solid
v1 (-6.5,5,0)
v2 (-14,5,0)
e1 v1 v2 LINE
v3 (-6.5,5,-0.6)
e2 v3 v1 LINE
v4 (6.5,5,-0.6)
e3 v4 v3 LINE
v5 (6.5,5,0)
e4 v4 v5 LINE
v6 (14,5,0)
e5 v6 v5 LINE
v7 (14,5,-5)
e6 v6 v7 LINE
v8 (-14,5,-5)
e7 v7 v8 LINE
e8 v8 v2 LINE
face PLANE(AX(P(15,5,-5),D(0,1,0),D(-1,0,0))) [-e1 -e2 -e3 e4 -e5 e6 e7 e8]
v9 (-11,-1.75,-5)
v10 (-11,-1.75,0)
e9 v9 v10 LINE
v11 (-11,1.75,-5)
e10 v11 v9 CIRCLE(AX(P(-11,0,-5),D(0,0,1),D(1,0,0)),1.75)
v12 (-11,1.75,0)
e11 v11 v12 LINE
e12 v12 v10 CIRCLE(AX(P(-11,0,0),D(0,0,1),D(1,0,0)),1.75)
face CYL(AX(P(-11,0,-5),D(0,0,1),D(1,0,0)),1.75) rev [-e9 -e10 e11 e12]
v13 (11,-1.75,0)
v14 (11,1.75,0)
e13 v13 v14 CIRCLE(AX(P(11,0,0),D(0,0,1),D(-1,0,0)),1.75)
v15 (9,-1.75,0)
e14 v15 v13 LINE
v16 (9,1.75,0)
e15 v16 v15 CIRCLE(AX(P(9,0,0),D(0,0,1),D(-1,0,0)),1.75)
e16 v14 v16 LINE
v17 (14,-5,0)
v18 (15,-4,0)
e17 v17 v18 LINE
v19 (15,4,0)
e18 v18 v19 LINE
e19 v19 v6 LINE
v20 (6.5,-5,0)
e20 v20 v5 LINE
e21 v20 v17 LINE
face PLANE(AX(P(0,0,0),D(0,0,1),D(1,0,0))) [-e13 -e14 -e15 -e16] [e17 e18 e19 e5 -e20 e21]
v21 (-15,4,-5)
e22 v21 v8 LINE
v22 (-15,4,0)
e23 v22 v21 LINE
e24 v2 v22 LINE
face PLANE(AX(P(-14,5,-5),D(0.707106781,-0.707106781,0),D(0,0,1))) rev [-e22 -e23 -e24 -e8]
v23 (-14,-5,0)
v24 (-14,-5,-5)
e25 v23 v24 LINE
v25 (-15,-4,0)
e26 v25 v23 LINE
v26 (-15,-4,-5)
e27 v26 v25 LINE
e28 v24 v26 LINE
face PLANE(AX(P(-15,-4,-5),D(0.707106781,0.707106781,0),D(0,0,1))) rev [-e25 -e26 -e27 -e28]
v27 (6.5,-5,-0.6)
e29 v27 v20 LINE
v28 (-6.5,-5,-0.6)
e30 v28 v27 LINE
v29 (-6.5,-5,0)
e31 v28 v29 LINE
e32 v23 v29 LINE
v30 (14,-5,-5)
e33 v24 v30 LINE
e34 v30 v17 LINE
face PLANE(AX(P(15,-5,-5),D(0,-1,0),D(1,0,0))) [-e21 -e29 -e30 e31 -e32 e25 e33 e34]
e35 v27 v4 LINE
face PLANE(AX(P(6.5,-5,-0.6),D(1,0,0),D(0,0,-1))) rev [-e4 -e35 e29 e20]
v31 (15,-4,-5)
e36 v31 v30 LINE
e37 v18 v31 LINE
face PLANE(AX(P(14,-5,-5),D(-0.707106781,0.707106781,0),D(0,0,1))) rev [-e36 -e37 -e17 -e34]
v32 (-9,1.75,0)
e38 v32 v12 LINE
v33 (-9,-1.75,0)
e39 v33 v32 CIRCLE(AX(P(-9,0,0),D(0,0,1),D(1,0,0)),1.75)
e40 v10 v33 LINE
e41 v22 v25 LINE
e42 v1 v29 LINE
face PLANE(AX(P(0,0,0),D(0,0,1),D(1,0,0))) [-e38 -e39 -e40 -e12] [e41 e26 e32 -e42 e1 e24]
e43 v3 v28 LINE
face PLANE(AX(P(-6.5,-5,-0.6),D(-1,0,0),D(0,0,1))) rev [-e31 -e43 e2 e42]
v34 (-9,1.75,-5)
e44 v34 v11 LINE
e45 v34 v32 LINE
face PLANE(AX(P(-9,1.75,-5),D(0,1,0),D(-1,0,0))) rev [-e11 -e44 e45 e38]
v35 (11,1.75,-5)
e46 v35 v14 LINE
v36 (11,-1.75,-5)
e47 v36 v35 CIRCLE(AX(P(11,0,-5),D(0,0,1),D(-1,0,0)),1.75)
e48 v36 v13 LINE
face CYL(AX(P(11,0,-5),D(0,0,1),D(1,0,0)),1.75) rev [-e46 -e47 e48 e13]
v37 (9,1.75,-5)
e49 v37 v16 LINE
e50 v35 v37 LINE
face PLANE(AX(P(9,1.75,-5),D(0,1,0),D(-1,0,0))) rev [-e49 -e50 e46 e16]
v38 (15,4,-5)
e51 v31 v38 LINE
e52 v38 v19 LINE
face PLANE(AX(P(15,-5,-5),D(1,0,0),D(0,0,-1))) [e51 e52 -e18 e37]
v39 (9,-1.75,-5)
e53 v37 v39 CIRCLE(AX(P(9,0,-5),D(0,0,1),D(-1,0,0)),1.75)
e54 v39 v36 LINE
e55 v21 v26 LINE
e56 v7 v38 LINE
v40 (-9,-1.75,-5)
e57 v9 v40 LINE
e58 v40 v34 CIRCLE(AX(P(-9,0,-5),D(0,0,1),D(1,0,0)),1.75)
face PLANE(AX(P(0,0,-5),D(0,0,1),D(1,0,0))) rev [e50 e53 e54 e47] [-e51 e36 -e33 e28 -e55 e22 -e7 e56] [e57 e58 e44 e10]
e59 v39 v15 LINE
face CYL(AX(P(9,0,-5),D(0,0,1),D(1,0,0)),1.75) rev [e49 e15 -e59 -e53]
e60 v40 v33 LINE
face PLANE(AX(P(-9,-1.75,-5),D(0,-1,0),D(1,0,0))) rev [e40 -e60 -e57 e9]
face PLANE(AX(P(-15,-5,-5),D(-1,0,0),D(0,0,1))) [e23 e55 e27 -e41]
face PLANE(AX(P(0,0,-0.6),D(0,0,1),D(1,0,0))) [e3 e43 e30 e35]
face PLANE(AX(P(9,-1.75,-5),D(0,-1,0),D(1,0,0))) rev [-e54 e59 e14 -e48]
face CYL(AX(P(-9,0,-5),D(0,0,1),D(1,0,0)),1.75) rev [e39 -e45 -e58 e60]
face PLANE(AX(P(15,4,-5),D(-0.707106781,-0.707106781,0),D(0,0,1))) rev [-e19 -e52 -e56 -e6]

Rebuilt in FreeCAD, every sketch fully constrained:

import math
import FreeCAD as App
import Part
import Sketcher
Q = App.Units.Quantity


def edges_at(feature, points):
    """Names of the edges that pass closest to the given points."""
    edges = feature.Shape.Edges
    near = lambda p: min(range(len(edges)), key=lambda i: edges[i].distToShape(Part.Vertex(*p))[0])
    return sorted({f"Edge{near(p) + 1}" for p in points})


def add_polygon(sketch, points):
    """Adds a closed chain of lines whose ends are joined by coincident constraints."""
    first, n = sketch.GeometryCount, len(points)
    for a, b in zip(points, points[1:] + points[:1]):
        sketch.addGeometry(Part.LineSegment(App.Vector(*a, 0), App.Vector(*b, 0)), False)
    for i in range(n):
        sketch.addConstraint(Sketcher.Constraint("Coincident", first + i, 2, first + (i + 1) % n, 1))

doc = App.newDocument("Part")
body = doc.addObject("PartDesign::Body", "Body")

sketch1 = body.newObject("Sketcher::SketchObject", "Sketch")
sketch1.AttachmentSupport = (doc.getObject("XY_Plane"), [""])
sketch1.MapMode = "FlatFace"
add_polygon(sketch1, [(-15, 5), (-15, -5), (15, -5), (15, 5)])
sketch1.addGeometry(Part.ArcOfCircle(Part.Circle(App.Vector(-9, 0, 0), App.Vector(0, 0, 1), 1.75), math.radians(-90), math.radians(90)), False)
sketch1.addGeometry(Part.LineSegment(App.Vector(-9, -1.75, 0), App.Vector(-11, -1.75, 0)), False)
sketch1.addGeometry(Part.ArcOfCircle(Part.Circle(App.Vector(-11, 0, 0), App.Vector(0, 0, 1), 1.75), math.radians(90), math.radians(270)), False)
sketch1.addGeometry(Part.LineSegment(App.Vector(-11, 1.75, 0), App.Vector(-9, 1.75, 0)), False)
sketch1.addGeometry(Part.LineSegment(App.Vector(11, -1.75, 0), App.Vector(9, -1.75, 0)), False)
sketch1.addGeometry(Part.ArcOfCircle(Part.Circle(App.Vector(9, 0, 0), App.Vector(0, 0, 1), 1.75), math.radians(90), math.radians(270)), False)
sketch1.addGeometry(Part.LineSegment(App.Vector(9, 1.75, 0), App.Vector(11, 1.75, 0)), False)
sketch1.addGeometry(Part.ArcOfCircle(Part.Circle(App.Vector(11, 0, 0), App.Vector(0, 0, 1), 1.75), math.radians(-90), math.radians(90)), False)
sketch1.addConstraint(Sketcher.Constraint("Tangent", 4, 1, 5, 1))
sketch1.addConstraint(Sketcher.Constraint("Tangent", 5, 2, 6, 2))
sketch1.addConstraint(Sketcher.Constraint("Tangent", 6, 1, 7, 1))
sketch1.addConstraint(Sketcher.Constraint("Tangent", 7, 2, 4, 2))
sketch1.addConstraint(Sketcher.Constraint("Tangent", 8, 2, 9, 2))
sketch1.addConstraint(Sketcher.Constraint("Tangent", 9, 1, 10, 1))
sketch1.addConstraint(Sketcher.Constraint("Tangent", 10, 2, 11, 2))
sketch1.addConstraint(Sketcher.Constraint("Tangent", 11, 1, 8, 1))
sketch1.addConstraint(Sketcher.Constraint("Vertical", 0))
sketch1.addConstraint(Sketcher.Constraint("Horizontal", 1))
sketch1.addConstraint(Sketcher.Constraint("Vertical", 2))
sketch1.addConstraint(Sketcher.Constraint("Horizontal", 3))
sketch1.addConstraint(Sketcher.Constraint("Horizontal", 5))
sketch1.addConstraint(Sketcher.Constraint("Horizontal", 7))
sketch1.addConstraint(Sketcher.Constraint("Horizontal", 8))
sketch1.addConstraint(Sketcher.Constraint("Horizontal", 10))
sketch1.addConstraint(Sketcher.Constraint("Equal", 6, 9))
sketch1.addConstraint(Sketcher.Constraint("Symmetric", 4, 3, 9, 3, -1, 1))
sketch1.addConstraint(Sketcher.Constraint("Symmetric", 0, 2, 2, 2, -1, 1))
sketch1.addConstraint(Sketcher.Constraint("Symmetric", 6, 3, 11, 3, -2))
sketch1.addConstraint(Sketcher.Constraint("DistanceX", 1, 1, 1, 2, Q("30 mm")))
sketch1.addConstraint(Sketcher.Constraint("DistanceX", 5, 2, 5, 1, Q("2 mm")))
sketch1.addConstraint(Sketcher.Constraint("DistanceY", 0, 2, 0, 1, Q("10 mm")))
sketch1.addConstraint(Sketcher.Constraint("Radius", 4, Q("1.75 mm")))
sketch1.addConstraint(Sketcher.Constraint("DistanceX", 4, 3, -1, 1, Q("9 mm")))
pad1 = body.newObject("PartDesign::Pad", "Pad")
pad1.Profile = sketch1
pad1.Length = 5
pad1.Reversed = True

sketch2 = body.newObject("Sketcher::SketchObject", "Sketch001")
sketch2.AttachmentSupport = (doc.getObject("XY_Plane"), [""])
sketch2.MapMode = "FlatFace"
add_polygon(sketch2, [(-6.5, 5), (-6.5, -5), (6.5, -5), (6.5, 5)])
sketch2.addConstraint(Sketcher.Constraint("Vertical", 0))
sketch2.addConstraint(Sketcher.Constraint("Horizontal", 1))
sketch2.addConstraint(Sketcher.Constraint("Vertical", 2))
sketch2.addConstraint(Sketcher.Constraint("Horizontal", 3))
sketch2.addConstraint(Sketcher.Constraint("Symmetric", 0, 2, 2, 2, -1, 1))
sketch2.addConstraint(Sketcher.Constraint("DistanceX", 1, 1, 1, 2, Q("13 mm")))
sketch2.addConstraint(Sketcher.Constraint("DistanceY", 0, 2, 0, 1, Q("10 mm")))
pocket1 = body.newObject("PartDesign::Pocket", "Pocket")
pocket1.Profile = sketch2
pocket1.Length = 0.6
doc.recompute()

chamfer = body.newObject("PartDesign::Chamfer", "Chamfer")
chamfer.Base = (pocket1, edges_at(pocket1, [
    (-15, 5, -2.5),
    (15, 5, -2.5),
    (15, -5, -2.5),
    (-15, -5, -2.5),
]))
chamfer.Size = 1

doc.recompute()
